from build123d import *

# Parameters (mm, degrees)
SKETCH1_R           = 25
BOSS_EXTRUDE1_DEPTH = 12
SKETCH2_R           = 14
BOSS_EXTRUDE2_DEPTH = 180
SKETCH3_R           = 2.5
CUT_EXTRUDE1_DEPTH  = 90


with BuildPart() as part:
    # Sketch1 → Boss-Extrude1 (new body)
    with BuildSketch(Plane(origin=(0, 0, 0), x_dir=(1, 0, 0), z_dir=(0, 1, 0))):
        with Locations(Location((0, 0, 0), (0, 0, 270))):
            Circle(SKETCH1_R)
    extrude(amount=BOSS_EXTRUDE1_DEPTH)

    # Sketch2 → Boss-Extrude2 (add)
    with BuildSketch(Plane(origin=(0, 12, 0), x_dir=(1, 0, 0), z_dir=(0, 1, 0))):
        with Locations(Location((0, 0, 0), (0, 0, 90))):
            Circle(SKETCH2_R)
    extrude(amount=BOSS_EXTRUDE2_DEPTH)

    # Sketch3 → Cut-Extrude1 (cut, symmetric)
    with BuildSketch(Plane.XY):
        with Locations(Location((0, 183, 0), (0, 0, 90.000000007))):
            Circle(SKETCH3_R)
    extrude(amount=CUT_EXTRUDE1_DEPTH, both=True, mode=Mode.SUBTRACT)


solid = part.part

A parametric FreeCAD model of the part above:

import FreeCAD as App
import Part
import Sketcher

doc = App.newDocument("Part")
params = doc.addObject("Spreadsheet::Sheet", "Params")
for row, (alias, value) in enumerate([
    ("sketch1_diameter", "50 mm"),
    ("pad1_length", "12 mm"),
    ("sketch2_diameter", "28 mm"),
    ("pad2_length", "180 mm"),
    ("sketch3_diameter", "5 mm"),
    ("pocket1_length", "180 mm"),
], start=1):
    params.set(f"A{row}", alias)
    params.set(f"B{row}", "=" + value)
    params.setAlias(f"B{row}", alias)

body = doc.addObject("PartDesign::Body", "Body")

sketch1 = doc.addObject("Sketcher::SketchObject", "Sketch")
body.addObject(sketch1)
sketch1.AttachmentSupport = (doc.XZ_Plane, [""])
sketch1.MapMode = "FlatFace"
sketch1.addGeometry(Part.Circle(App.Vector(0, 0, 0), App.Vector(0, 0, 1), 25), False)
sketch1.addConstraint(Sketcher.Constraint("Coincident", 0, 3, -1, 1))
sketch1.addConstraint(Sketcher.Constraint("Diameter", 0, 50.0))
sketch1.setExpression("Constraints[1]", "Params.sketch1_diameter")
pad1 = doc.addObject("PartDesign::Pad", "Pad")
body.addObject(pad1)
pad1.Profile = sketch1
pad1.setExpression("Length", "Params.pad1_length")
pad1.Reversed = True

sketch2 = doc.addObject("Sketcher::SketchObject", "Sketch001")
body.addObject(sketch2)
sketch2.AttachmentSupport = (doc.XZ_Plane, [""])
sketch2.MapMode = "FlatFace"
sketch2.AttachmentOffset = App.Placement(App.Vector(0, 0, -12), App.Rotation())
sketch2.addGeometry(Part.Circle(App.Vector(0, 0, 0), App.Vector(0, 0, 1), 14), False)
sketch2.addConstraint(Sketcher.Constraint("Coincident", 0, 3, -1, 1))
sketch2.addConstraint(Sketcher.Constraint("Diameter", 0, 28.0))
sketch2.setExpression("Constraints[1]", "Params.sketch2_diameter")
pad2 = doc.addObject("PartDesign::Pad", "Pad001")
body.addObject(pad2)
pad2.Profile = sketch2
pad2.setExpression("Length", "Params.pad2_length")
pad2.Reversed = True

sketch3 = doc.addObject("Sketcher::SketchObject", "Sketch002")
body.addObject(sketch3)
sketch3.AttachmentSupport = (doc.XY_Plane, [""])
sketch3.MapMode = "FlatFace"
sketch3.addGeometry(Part.Circle(App.Vector(0, 183, 0), App.Vector(0, 0, 1), 2.5), False)
sketch3.addConstraint(Sketcher.Constraint("PointOnObject", 0, 3, -2))
sketch3.addConstraint(Sketcher.Constraint("Diameter", 0, 5.0))
sketch3.addConstraint(Sketcher.Constraint("DistanceY", -1, 1, 0, 3, 183.0))
sketch3.setExpression("Constraints[1]", "Params.sketch3_diameter")
pocket1 = doc.addObject("PartDesign::Pocket", "Pocket")
body.addObject(pocket1)
pocket1.Profile = sketch3
pocket1.setExpression("Length", "Params.pocket1_length")
pocket1.Midplane = True

doc.recompute()
